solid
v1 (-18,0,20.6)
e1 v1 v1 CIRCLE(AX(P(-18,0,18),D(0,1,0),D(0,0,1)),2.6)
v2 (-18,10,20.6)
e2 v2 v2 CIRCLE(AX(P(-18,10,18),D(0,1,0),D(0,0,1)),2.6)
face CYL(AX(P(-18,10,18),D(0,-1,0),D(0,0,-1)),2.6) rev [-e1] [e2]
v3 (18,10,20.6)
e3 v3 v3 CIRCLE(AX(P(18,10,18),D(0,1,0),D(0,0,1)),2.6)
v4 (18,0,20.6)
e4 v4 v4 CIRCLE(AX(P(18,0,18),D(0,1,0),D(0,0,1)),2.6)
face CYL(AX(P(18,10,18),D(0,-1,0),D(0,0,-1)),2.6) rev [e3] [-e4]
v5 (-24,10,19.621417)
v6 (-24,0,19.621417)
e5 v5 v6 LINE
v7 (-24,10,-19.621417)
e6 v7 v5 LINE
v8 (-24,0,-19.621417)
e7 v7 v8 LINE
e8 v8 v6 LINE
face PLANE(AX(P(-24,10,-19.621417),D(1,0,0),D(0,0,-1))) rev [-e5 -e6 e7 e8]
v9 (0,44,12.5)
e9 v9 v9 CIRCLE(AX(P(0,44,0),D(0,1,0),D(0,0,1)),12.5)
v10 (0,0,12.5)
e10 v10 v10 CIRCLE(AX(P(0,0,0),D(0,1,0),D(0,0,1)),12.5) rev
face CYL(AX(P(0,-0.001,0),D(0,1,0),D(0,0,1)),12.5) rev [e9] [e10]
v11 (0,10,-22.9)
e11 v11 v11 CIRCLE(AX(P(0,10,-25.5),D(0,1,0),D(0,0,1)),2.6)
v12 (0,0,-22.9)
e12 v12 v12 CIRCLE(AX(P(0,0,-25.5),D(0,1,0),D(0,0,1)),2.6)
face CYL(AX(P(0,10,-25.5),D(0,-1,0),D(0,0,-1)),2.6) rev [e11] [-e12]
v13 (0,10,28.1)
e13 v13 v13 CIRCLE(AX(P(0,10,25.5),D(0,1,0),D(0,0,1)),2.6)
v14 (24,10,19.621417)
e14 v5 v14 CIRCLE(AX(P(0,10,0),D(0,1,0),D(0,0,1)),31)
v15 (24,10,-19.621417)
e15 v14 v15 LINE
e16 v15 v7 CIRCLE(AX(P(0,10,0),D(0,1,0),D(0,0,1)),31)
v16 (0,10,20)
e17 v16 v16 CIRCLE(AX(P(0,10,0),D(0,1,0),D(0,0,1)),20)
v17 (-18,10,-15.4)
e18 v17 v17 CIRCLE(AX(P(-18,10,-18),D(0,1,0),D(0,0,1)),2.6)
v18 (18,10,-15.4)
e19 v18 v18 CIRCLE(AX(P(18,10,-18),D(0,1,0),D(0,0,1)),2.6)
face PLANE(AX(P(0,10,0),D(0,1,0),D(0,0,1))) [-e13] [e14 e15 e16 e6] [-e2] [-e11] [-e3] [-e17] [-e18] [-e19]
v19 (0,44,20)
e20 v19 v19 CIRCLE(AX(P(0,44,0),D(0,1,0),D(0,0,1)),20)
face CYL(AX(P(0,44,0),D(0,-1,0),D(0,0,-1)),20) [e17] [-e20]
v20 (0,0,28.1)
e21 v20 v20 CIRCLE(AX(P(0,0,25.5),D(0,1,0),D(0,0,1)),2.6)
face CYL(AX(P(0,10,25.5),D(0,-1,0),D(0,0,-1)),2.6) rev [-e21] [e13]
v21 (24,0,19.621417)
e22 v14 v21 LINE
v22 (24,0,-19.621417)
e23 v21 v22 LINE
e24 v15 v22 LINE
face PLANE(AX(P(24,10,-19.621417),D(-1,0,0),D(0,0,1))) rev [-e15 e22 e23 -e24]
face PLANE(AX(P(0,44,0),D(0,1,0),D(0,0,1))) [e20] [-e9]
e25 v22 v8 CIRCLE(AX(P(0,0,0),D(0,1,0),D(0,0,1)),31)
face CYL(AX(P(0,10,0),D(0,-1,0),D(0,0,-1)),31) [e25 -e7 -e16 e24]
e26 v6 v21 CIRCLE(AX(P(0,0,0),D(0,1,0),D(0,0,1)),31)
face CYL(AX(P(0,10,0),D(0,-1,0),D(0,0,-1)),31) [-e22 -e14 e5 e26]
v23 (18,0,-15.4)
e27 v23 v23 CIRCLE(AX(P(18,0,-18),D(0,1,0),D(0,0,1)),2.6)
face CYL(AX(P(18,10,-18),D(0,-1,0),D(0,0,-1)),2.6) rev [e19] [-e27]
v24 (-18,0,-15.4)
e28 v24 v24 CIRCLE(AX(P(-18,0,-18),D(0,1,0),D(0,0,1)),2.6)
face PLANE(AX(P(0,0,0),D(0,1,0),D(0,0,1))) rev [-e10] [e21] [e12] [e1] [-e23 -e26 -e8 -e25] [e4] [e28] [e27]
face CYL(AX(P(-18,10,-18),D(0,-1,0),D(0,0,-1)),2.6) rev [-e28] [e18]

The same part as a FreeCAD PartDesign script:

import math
import FreeCAD as App
import Part
import Sketcher
from FreeCAD import Vector

doc = App.newDocument("Part")
body = doc.addObject("PartDesign::Body", "Body")

sketch1 = body.newObject("Sketcher::SketchObject", "Sketch")
sketch1.AttachmentSupport = (doc.getObject("XZ_Plane"), [""])
sketch1.MapMode = "FlatFace"
sketch1.addGeometry([
    Part.LineSegment(Vector(-24, -19.6, 0), Vector(-24, 19.6, 0)),
    Part.ArcOfCircle(Part.Circle(Vector(0, 0, 0), Vector(0, 0, 1), 31), math.radians(39), math.radians(141)),
    Part.LineSegment(Vector(24, 19.6, 0), Vector(24, -19.6, 0)),
    Part.ArcOfCircle(Part.Circle(Vector(0, 0, 0), Vector(0, 0, 1), 31), math.radians(-141), math.radians(-39)),
    Part.Circle(Vector(-18, 18, 0), Vector(0, 0, 1), 2.6),
    Part.Circle(Vector(0, 25.5, 0), Vector(0, 0, 1), 2.6),
    Part.Circle(Vector(18, 18, 0), Vector(0, 0, 1), 2.6),
    Part.Circle(Vector(-18, -18, 0), Vector(0, 0, 1), 2.6),
    Part.Circle(Vector(0, -25.5, 0), Vector(0, 0, 1), 2.6),
    Part.Circle(Vector(18, -18, 0), Vector(0, 0, 1), 2.6),
], False)
sketch1.addConstraint([
    Sketcher.Constraint("Coincident", 0, 2, 1, 2),
    Sketcher.Constraint("Coincident", 1, 1, 2, 1),
    Sketcher.Constraint("Coincident", 2, 2, 3, 2),
    Sketcher.Constraint("Coincident", 3, 1, 0, 1),
    Sketcher.Constraint("Vertical", 0),
    Sketcher.Constraint("Vertical", 2),
    Sketcher.Constraint("Coincident", 1, 3, -1, 1),
    Sketcher.Constraint("Coincident", 3, 3, -1, 1),
    Sketcher.Constraint("Equal", 1, 3),
    Sketcher.Constraint("Equal", 4, 5),
    Sketcher.Constraint("Equal", 5, 6),
    Sketcher.Constraint("Equal", 6, 7),
    Sketcher.Constraint("Equal", 7, 8),
    Sketcher.Constraint("Equal", 8, 9),
    Sketcher.Constraint("Symmetric", 6, 3, 7, 3, -1, 1),
    Sketcher.Constraint("Symmetric", 5, 3, 8, 3, -1, 1),
    Sketcher.Constraint("Symmetric", 4, 3, 9, 3, -1, 1),
    Sketcher.Constraint("Symmetric", 4, 3, 6, 3, -2),
    Sketcher.Constraint("PointOnObject", 5, 3, -2),
    Sketcher.Constraint("Horizontal", 0, 2, 1, 1),
    Sketcher.Constraint("Radius", 1, 31.0),
    Sketcher.Constraint("Diameter", 4, 5.2),
    Sketcher.Constraint("DistanceX", 4, 3, -1, 1, 18.0),
    Sketcher.Constraint("DistanceY", -1, 1, 4, 3, 18.0),
    Sketcher.Constraint("DistanceX", 0, 2, -1, 1, 24.0),
    Sketcher.Constraint("DistanceY", -1, 1, 5, 3, 25.5),
])
pad1 = body.newObject("PartDesign::Pad", "Pad")
pad1.Profile = sketch1
pad1.Length = 10
pad1.Reversed = True

sketch2 = body.newObject("Sketcher::SketchObject", "Sketch001")
sketch2.AttachmentSupport = (doc.getObject("XZ_Plane"), [""])
sketch2.MapMode = "FlatFace"
sketch2.AttachmentOffset = App.Placement(Vector(0, 0, -10), App.Rotation())
sketch2.addGeometry(Part.Circle(Vector(0, 0, 0), Vector(0, 0, 1), 20), False)
sketch2.addConstraint([
    Sketcher.Constraint("Coincident", 0, 3, -1, 1),
    Sketcher.Constraint("Diameter", 0, 40.0),
])
pad2 = body.newObject("PartDesign::Pad", "Pad001")
pad2.Profile = sketch2
pad2.Length = 34
pad2.Reversed = True

sketch3 = body.newObject("Sketcher::SketchObject", "Sketch002")
sketch3.AttachmentSupport = (doc.getObject("XZ_Plane"), [""])
sketch3.MapMode = "FlatFace"
sketch3.AttachmentOffset = App.Placement(Vector(0, 0, -44), App.Rotation())
sketch3.addGeometry(Part.Circle(Vector(0, 0, 0), Vector(0, 0, 1), 12), False)
sketch3.addConstraint([
    Sketcher.Constraint("Coincident", 0, 3, -1, 1),
    Sketcher.Constraint("Diameter", 0, 25.0),
])
pocket1 = body.newObject("PartDesign::Pocket", "Pocket")
pocket1.Profile = sketch3
pocket1.Type = "UpToFirst"
pocket1.Reversed = True

doc.recompute()
